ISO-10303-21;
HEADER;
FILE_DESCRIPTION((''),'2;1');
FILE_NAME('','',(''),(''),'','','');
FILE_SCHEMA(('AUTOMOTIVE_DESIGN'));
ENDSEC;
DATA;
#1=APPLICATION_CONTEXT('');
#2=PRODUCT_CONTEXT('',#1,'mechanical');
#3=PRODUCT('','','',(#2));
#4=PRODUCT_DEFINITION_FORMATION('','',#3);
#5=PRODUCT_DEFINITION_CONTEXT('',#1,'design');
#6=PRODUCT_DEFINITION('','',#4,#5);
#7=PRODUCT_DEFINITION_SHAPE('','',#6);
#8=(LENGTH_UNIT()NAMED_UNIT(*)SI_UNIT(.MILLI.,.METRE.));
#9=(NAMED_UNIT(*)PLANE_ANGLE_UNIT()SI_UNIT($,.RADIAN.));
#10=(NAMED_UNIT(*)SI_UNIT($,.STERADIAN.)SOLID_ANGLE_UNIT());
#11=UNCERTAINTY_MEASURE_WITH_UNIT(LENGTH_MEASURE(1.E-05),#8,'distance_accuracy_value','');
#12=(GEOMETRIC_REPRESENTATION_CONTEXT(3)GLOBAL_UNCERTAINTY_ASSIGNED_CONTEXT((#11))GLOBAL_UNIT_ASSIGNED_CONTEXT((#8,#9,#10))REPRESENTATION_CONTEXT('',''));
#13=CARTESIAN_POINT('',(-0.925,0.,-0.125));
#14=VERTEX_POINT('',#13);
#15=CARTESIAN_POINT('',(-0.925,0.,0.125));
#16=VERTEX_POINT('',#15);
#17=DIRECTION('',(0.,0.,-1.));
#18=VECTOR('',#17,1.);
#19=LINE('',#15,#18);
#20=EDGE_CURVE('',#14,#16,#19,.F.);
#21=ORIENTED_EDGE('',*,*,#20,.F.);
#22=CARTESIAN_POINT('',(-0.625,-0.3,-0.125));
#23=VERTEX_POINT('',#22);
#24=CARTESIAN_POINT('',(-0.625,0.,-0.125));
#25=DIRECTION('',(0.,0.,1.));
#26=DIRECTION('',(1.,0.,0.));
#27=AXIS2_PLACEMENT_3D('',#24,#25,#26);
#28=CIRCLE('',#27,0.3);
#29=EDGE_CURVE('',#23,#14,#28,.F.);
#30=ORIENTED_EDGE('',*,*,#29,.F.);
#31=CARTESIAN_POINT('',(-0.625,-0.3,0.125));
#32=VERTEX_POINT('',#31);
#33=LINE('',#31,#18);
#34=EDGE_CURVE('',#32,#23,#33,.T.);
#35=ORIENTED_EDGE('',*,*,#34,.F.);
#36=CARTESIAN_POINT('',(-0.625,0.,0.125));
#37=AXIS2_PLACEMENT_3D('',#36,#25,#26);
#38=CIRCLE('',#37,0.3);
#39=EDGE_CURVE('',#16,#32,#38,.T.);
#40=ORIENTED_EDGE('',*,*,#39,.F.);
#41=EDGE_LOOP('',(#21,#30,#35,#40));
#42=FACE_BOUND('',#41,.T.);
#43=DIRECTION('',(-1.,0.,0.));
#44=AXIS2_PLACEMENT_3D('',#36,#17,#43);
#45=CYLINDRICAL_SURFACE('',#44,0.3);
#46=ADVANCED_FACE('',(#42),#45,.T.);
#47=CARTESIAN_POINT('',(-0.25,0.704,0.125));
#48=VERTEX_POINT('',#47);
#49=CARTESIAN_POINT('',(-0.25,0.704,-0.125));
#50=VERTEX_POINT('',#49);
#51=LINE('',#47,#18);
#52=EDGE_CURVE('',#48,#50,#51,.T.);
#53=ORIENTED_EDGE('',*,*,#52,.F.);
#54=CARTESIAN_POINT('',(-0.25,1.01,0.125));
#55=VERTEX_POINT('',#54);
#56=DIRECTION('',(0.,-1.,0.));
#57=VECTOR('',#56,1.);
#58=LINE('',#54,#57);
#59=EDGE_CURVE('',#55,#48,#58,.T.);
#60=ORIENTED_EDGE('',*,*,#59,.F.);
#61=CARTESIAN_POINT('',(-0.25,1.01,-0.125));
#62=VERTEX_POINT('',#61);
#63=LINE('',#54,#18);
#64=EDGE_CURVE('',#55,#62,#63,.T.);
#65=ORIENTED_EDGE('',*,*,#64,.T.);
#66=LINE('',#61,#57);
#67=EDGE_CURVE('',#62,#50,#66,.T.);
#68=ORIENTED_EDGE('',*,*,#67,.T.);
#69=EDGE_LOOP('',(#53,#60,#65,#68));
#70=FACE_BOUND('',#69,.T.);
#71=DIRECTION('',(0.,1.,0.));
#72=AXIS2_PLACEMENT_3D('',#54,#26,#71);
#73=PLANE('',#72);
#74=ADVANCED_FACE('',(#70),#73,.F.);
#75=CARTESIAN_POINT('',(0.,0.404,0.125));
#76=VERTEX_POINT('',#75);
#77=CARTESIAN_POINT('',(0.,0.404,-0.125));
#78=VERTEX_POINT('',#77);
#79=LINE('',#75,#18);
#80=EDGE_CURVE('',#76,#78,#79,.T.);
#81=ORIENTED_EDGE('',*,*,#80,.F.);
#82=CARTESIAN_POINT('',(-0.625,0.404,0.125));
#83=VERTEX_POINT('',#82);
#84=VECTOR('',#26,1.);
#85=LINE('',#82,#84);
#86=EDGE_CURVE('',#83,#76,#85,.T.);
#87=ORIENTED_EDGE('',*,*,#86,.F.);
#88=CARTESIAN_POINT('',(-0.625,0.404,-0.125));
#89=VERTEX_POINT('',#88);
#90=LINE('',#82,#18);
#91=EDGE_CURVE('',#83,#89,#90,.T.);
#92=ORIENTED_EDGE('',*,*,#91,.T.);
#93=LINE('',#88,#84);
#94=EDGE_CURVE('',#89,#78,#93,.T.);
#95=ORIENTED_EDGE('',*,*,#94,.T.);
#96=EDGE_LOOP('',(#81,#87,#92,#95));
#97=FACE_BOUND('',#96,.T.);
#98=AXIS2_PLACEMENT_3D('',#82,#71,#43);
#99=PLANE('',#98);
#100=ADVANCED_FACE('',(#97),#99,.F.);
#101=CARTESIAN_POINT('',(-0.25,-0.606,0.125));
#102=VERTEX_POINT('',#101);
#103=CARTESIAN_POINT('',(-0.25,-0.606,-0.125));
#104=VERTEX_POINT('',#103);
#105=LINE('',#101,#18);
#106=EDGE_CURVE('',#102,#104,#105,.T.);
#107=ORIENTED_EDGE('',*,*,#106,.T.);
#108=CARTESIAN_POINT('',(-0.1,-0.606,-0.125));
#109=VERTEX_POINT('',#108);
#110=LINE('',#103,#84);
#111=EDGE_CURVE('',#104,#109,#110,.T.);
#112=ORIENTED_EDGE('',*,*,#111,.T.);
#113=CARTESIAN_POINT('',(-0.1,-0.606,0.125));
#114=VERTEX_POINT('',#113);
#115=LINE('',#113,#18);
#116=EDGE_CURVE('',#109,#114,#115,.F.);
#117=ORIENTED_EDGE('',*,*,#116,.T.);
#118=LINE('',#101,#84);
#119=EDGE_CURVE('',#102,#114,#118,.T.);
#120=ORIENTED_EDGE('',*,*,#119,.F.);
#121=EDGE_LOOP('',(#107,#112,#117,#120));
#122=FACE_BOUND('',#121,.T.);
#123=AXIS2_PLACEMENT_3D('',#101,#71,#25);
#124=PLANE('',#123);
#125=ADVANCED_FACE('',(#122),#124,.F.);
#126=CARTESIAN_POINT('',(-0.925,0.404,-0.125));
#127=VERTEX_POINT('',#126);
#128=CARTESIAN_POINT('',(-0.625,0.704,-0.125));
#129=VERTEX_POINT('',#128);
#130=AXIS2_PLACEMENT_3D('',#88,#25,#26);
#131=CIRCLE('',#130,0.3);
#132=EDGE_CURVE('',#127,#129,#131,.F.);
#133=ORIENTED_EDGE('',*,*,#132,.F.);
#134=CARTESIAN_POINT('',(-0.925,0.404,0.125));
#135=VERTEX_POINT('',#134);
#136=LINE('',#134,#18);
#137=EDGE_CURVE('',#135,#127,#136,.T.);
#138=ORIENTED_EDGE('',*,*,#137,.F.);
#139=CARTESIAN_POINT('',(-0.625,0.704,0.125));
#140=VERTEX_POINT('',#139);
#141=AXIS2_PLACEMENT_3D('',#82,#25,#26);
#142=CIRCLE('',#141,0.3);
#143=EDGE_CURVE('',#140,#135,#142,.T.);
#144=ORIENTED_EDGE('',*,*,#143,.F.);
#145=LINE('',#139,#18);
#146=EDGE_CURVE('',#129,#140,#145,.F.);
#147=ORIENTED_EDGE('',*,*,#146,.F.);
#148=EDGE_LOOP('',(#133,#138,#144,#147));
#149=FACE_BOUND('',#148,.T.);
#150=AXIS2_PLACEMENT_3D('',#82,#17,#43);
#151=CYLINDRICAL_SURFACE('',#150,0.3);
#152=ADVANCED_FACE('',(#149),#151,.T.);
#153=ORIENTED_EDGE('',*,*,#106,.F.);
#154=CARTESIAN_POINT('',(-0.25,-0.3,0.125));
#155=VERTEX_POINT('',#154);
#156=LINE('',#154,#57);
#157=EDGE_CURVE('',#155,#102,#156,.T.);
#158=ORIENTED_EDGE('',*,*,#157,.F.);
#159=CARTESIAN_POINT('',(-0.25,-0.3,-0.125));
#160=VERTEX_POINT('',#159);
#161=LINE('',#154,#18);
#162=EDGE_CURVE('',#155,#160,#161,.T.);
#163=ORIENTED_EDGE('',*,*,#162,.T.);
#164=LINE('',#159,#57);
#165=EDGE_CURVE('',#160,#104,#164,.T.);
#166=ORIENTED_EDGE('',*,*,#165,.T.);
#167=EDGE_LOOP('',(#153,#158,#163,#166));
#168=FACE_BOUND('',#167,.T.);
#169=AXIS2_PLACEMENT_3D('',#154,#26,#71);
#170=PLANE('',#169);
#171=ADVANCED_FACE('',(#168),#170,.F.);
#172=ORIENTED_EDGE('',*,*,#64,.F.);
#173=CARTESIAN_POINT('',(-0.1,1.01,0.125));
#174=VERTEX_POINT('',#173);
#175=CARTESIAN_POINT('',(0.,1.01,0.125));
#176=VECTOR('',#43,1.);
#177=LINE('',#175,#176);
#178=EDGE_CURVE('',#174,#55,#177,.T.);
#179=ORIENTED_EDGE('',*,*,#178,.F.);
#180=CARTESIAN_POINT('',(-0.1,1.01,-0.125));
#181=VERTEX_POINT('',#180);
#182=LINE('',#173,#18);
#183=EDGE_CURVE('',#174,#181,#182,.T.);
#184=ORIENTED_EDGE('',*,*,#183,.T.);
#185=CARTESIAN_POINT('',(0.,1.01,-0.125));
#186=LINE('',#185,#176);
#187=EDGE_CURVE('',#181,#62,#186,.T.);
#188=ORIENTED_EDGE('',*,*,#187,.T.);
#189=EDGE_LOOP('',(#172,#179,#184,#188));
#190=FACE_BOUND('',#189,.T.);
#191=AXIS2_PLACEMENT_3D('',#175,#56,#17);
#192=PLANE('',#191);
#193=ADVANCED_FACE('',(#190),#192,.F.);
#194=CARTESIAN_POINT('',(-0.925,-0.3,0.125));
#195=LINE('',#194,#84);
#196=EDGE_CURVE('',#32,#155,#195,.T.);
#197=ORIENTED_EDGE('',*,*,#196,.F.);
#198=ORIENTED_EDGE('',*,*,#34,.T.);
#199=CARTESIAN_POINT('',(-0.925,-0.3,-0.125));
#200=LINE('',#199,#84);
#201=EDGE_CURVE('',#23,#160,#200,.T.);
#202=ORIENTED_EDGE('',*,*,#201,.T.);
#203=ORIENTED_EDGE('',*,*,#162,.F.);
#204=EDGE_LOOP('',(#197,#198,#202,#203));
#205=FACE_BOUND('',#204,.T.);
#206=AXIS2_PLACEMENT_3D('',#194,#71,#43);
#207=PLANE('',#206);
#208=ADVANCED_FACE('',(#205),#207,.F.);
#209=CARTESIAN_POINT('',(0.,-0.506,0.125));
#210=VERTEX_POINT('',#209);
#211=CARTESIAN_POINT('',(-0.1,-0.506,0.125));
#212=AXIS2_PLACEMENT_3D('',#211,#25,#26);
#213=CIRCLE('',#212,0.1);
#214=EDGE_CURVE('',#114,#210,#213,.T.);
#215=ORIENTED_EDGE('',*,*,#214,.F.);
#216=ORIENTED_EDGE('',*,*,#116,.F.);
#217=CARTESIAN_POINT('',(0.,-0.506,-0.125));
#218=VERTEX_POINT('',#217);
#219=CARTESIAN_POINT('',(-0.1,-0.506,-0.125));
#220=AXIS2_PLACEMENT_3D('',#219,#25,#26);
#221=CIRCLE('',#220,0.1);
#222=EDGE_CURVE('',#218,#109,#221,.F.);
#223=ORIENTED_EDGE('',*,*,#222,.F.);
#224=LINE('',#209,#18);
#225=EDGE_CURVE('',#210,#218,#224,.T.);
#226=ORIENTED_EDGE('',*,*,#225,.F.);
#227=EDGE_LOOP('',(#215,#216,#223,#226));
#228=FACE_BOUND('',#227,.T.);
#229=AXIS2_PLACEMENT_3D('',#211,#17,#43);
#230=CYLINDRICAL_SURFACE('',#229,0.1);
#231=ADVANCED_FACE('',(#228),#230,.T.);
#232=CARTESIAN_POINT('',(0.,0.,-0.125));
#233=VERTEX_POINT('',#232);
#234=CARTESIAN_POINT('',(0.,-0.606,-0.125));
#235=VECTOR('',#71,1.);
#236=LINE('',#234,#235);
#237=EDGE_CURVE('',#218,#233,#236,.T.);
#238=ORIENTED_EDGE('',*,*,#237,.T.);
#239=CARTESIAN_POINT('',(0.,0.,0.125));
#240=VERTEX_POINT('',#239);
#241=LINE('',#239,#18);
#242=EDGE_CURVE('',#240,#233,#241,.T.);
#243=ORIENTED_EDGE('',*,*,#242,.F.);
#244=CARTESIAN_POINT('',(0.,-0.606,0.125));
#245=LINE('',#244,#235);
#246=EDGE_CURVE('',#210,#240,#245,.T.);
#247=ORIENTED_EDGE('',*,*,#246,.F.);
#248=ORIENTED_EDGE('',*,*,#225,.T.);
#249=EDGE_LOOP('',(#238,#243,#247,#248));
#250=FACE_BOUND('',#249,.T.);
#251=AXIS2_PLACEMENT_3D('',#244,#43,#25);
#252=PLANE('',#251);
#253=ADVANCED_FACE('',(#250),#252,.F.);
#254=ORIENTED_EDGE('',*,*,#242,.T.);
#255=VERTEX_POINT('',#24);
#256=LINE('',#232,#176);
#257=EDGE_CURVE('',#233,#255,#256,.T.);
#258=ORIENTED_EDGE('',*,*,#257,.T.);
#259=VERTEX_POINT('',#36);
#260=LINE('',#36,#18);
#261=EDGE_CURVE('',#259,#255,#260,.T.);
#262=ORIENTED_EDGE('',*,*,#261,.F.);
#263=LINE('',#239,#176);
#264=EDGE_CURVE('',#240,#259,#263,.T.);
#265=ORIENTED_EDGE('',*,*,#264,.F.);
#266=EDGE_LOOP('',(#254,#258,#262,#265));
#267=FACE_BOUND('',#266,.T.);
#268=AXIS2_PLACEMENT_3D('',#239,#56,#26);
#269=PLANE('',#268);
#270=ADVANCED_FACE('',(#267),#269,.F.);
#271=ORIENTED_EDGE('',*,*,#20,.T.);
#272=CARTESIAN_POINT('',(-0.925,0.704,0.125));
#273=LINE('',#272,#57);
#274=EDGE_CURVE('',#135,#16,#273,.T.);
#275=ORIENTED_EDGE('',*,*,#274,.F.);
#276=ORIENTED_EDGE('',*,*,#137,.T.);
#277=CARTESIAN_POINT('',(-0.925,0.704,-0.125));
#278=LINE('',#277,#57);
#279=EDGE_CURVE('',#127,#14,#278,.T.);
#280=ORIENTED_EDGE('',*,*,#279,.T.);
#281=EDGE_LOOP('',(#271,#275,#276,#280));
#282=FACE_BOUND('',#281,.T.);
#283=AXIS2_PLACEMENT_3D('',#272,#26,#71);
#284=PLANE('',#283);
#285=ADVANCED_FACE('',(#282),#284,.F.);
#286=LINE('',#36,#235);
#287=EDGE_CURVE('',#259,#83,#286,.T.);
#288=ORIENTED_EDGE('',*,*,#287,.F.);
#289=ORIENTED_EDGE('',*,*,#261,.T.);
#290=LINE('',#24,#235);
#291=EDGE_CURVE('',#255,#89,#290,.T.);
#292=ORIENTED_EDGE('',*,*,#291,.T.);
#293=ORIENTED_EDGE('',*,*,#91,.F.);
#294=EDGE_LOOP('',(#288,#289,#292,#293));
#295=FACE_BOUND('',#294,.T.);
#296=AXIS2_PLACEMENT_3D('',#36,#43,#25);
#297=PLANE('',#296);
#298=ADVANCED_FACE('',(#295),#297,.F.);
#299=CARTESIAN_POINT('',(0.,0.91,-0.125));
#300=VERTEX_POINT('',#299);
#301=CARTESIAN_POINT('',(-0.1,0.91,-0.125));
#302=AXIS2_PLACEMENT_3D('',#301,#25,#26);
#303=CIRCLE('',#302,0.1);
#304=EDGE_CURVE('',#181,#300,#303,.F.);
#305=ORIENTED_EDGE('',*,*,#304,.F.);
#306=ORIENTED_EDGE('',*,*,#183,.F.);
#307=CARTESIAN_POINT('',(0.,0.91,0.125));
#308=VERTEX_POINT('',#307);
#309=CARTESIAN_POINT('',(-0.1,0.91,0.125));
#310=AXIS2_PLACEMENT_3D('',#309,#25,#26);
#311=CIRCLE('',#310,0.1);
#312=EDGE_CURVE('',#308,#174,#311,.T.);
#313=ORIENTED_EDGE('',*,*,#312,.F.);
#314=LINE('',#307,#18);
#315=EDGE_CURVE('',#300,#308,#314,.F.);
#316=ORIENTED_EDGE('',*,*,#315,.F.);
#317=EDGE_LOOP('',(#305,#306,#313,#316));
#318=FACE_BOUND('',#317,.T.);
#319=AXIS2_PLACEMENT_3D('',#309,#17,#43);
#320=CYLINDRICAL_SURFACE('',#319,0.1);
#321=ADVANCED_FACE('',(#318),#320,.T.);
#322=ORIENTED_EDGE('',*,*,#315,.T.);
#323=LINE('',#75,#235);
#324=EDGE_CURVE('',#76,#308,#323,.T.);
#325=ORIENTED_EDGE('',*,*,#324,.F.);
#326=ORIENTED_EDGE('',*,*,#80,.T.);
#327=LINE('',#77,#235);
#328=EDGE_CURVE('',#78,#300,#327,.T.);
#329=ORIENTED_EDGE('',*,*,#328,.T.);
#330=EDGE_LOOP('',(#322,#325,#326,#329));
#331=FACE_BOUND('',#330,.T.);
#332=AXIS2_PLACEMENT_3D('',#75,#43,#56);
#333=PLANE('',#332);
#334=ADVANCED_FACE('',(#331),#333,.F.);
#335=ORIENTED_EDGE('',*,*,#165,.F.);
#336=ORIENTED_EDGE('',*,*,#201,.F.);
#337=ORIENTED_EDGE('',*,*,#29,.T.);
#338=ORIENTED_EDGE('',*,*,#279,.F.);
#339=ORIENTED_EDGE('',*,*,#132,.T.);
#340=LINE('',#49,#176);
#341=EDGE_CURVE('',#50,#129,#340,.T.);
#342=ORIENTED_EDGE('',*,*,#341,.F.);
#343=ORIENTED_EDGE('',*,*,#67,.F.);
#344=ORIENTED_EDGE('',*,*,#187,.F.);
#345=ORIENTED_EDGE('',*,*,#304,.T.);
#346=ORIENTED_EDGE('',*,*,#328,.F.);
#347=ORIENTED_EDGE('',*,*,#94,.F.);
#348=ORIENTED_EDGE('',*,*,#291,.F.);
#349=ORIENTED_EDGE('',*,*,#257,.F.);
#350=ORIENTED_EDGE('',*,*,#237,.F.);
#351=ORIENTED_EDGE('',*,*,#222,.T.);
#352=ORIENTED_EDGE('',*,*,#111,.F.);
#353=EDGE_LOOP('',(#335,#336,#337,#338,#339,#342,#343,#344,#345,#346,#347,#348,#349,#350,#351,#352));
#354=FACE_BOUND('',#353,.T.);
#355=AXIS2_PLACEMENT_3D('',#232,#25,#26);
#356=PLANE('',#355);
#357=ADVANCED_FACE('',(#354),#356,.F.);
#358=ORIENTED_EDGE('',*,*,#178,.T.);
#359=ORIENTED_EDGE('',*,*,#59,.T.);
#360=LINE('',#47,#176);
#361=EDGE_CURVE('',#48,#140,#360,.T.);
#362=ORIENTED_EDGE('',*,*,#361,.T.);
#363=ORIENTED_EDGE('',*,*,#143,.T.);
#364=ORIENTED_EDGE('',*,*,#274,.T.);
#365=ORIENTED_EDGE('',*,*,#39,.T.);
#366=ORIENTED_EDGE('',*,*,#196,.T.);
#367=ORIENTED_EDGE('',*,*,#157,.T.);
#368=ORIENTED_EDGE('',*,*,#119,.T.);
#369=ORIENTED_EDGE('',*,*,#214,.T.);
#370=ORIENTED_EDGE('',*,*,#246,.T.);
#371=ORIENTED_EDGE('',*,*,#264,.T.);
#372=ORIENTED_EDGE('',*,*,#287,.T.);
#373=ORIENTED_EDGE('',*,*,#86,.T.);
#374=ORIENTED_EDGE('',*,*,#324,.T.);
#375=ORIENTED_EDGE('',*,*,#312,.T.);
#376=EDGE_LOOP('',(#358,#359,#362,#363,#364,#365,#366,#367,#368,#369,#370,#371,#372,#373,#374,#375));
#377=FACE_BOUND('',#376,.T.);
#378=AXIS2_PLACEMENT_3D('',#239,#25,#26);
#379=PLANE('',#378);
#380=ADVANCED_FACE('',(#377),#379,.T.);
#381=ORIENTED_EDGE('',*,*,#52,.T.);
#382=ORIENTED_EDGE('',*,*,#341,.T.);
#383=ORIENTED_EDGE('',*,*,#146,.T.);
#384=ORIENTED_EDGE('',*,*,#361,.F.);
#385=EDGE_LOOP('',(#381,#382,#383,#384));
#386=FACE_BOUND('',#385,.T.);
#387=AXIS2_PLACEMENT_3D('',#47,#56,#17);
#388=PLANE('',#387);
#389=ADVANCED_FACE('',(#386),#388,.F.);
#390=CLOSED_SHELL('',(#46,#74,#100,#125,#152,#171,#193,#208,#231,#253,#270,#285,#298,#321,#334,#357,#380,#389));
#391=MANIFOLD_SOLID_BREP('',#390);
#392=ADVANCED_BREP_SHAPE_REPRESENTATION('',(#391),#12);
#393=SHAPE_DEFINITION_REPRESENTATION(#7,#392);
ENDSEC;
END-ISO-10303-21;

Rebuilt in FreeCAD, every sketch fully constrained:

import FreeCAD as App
import Part
import Sketcher
Q = App.Units.Quantity


def edges_at(feature, points):
    """Names of the edges that pass closest to the given points."""
    edges = feature.Shape.Edges
    near = lambda p: min(range(len(edges)), key=lambda i: edges[i].distToShape(Part.Vertex(*p))[0])
    return sorted({f"Edge{near(p) + 1}" for p in points})

doc = App.newDocument("Part")
body = doc.addObject("PartDesign::Body", "Body")

sketch1 = doc.addObject("Sketcher::SketchObject", "Sketch")
body.addObject(sketch1)
sketch1.AttachmentSupport = (doc.XY_Plane, [""])
sketch1.MapMode = "FlatFace"
sketch1.addGeometry([
    Part.LineSegment(App.Vector(0, 0, 0), App.Vector(-0.62, 0, 0)),
    Part.LineSegment(App.Vector(-0.62, 0, 0), App.Vector(-0.62, 0.4, 0)),
    Part.LineSegment(App.Vector(-0.62, 0.4, 0), App.Vector(0, 0.4, 0)),
    Part.LineSegment(App.Vector(0, 0.4, 0), App.Vector(0, 1.01, 0)),
    Part.LineSegment(App.Vector(0, 1.01, 0), App.Vector(-0.25, 1.01, 0)),
    Part.LineSegment(App.Vector(-0.25, 1.01, 0), App.Vector(-0.25, 0.7, 0)),
    Part.LineSegment(App.Vector(-0.25, 0.7, 0), App.Vector(-0.93, 0.7, 0)),
    Part.LineSegment(App.Vector(-0.93, 0.7, 0), App.Vector(-0.93, -0.3, 0)),
    Part.LineSegment(App.Vector(-0.93, -0.3, 0), App.Vector(-0.25, -0.3, 0)),
    Part.LineSegment(App.Vector(-0.25, -0.3, 0), App.Vector(-0.25, -0.61, 0)),
    Part.LineSegment(App.Vector(-0.25, -0.61, 0), App.Vector(0, -0.61, 0)),
    Part.LineSegment(App.Vector(0, -0.61, 0), App.Vector(0, 0, 0)),
], False)
sketch1.addConstraint([
    Sketcher.Constraint("Coincident", 0, 2, 1, 1),
    Sketcher.Constraint("Coincident", 1, 2, 2, 1),
    Sketcher.Constraint("Coincident", 2, 2, 3, 1),
    Sketcher.Constraint("Coincident", 3, 2, 4, 1),
    Sketcher.Constraint("Coincident", 4, 2, 5, 1),
    Sketcher.Constraint("Coincident", 5, 2, 6, 1),
    Sketcher.Constraint("Coincident", 6, 2, 7, 1),
    Sketcher.Constraint("Coincident", 7, 2, 8, 1),
    Sketcher.Constraint("Coincident", 8, 2, 9, 1),
    Sketcher.Constraint("Coincident", 9, 2, 10, 1),
    Sketcher.Constraint("Coincident", 10, 2, 11, 1),
    Sketcher.Constraint("Coincident", 11, 2, 0, 1),
    Sketcher.Constraint("Horizontal", 0),
    Sketcher.Constraint("Vertical", 1),
    Sketcher.Constraint("Horizontal", 2),
    Sketcher.Constraint("Vertical", 3),
    Sketcher.Constraint("Horizontal", 4),
    Sketcher.Constraint("Vertical", 5),
    Sketcher.Constraint("Horizontal", 6),
    Sketcher.Constraint("Vertical", 7),
    Sketcher.Constraint("Horizontal", 8),
    Sketcher.Constraint("Vertical", 9),
    Sketcher.Constraint("Horizontal", 10),
    Sketcher.Constraint("Vertical", 11),
    Sketcher.Constraint("Coincident", 11, 2, -1, 1),
    Sketcher.Constraint("PointOnObject", 2, 2, -2),
    Sketcher.Constraint("Vertical", 5, 2, 8, 2),
    Sketcher.Constraint("Equal", 5, 9),
    Sketcher.Constraint("Equal", 3, 11),
    Sketcher.Constraint("DistanceX", 4, 2, 4, 1, Q("0.25 mm")),
    Sketcher.Constraint("DistanceY", 7, 2, -1, 1, Q("0.3 mm")),
    Sketcher.Constraint("DistanceX", 6, 2, 1, 2, Q("0.3 mm")),
    Sketcher.Constraint("DistanceX", 0, 2, 0, 1, Q("0.625 mm")),
    Sketcher.Constraint("DistanceY", 1, 1, 1, 2, Q("0.404 mm")),
    Sketcher.Constraint("DistanceY", 3, 1, 3, 2, Q("0.606 mm")),
])
pad1 = doc.addObject("PartDesign::Pad", "Pad")
body.addObject(pad1)
pad1.Profile = sketch1
pad1.Length = 0.25
pad1.Midplane = True
doc.recompute()

fillet = doc.addObject("PartDesign::Fillet", "Fillet")
body.addObject(fillet)
fillet.Base = (pad1, edges_at(pad1, [(-0.925, -0.3, 0), (-0.925, 0.704, 0)]))
fillet.Radius = 0.3
doc.recompute()

fillet2 = doc.addObject("PartDesign::Fillet", "Fillet001")
body.addObject(fillet2)
fillet2.Base = (fillet, edges_at(fillet, [(0, -0.606, 0), (0, 1.01, 0)]))
fillet2.Radius = 0.1

doc.recompute()
